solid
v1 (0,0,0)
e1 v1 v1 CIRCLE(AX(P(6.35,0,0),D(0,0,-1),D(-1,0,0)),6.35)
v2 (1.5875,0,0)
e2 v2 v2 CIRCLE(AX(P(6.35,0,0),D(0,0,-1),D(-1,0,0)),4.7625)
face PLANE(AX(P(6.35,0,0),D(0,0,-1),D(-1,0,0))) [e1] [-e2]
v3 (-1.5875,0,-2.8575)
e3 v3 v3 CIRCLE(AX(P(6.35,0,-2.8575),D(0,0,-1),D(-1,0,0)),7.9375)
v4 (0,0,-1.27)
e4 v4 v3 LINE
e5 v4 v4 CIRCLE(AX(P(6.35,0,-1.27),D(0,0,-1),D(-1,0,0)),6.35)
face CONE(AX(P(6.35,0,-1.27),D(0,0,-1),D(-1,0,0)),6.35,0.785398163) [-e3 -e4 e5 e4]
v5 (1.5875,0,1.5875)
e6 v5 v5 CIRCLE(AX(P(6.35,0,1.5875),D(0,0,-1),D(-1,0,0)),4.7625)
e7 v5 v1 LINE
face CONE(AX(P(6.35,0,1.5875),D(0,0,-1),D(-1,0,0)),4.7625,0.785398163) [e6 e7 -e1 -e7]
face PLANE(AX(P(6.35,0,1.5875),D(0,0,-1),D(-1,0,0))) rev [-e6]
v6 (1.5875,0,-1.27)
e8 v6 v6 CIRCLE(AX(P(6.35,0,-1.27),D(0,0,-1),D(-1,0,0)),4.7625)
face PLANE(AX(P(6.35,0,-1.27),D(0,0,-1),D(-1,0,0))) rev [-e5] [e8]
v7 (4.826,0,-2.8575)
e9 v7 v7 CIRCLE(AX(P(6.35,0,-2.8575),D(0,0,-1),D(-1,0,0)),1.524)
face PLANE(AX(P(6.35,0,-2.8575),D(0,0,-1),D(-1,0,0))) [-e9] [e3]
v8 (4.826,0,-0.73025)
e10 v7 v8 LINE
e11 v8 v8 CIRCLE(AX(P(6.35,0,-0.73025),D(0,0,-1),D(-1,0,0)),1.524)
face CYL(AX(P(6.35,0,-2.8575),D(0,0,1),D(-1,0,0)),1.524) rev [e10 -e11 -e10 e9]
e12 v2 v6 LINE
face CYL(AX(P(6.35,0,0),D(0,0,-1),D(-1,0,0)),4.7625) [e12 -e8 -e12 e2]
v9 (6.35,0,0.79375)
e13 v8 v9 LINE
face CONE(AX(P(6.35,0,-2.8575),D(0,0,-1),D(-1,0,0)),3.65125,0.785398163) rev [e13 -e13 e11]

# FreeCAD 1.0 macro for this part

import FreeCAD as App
import Part
import Sketcher
from FreeCAD import Vector
Q = App.Units.Quantity


def add_polygon(sketch, points):
    """Adds a closed chain of lines whose ends are joined by coincident constraints."""
    first, n = sketch.GeometryCount, len(points)
    for a, b in zip(points, points[1:] + points[:1]):
        sketch.addGeometry(Part.LineSegment(App.Vector(*a, 0), App.Vector(*b, 0)), False)
    for i in range(n):
        sketch.addConstraint(Sketcher.Constraint("Coincident", first + i, 2, first + (i + 1) % n, 1))

doc = App.newDocument("Part")
body = doc.addObject("PartDesign::Body", "Body")

# Sketch on XZ plane
sketch1 = doc.addObject("Sketcher::SketchObject", "Sketch")
body.addObject(sketch1)
sketch1.AttachmentSupport = (doc.XZ_Plane, [""])
sketch1.MapMode = "FlatFace"
add_polygon(sketch1, [(1.5875, 1.5875), (0, 0), (1.5875, 0), (1.5875, -1.27), (0, -1.27), (-1.5875, -2.8575), (4.826, -2.8575), (4.826, -0.73025), (6.35, 0.79375), (6.35, 1.5875)])  # lines 0-9
sketch1.addGeometry(Part.LineSegment(Vector(6.35, 1.5875, 0), Vector(6.35, -2.8575, 0)), True)  # axis
sketch1.addConstraint([
    Sketcher.Constraint("Horizontal", 1),
    Sketcher.Constraint("Vertical", 2),
    Sketcher.Constraint("Horizontal", 3),
    Sketcher.Constraint("Horizontal", 5),
    Sketcher.Constraint("Vertical", 6),
    Sketcher.Constraint("Vertical", 8),
    Sketcher.Constraint("Horizontal", 9),
    Sketcher.Constraint("Vertical", 10),
    Sketcher.Constraint("Coincident", 0, 2, -1, 1),
    Sketcher.Constraint("Coincident", 10, 1, 8, 2),
    Sketcher.Constraint("PointOnObject", 3, 2, -2),
    Sketcher.Constraint("Parallel", 0, 4),
    Sketcher.Constraint("Parallel", 4, 7),
    Sketcher.Constraint("Horizontal", 5, 2, 10, 2),
    Sketcher.Constraint("Vertical", 2, 2, 9, 2),
    Sketcher.Constraint("Equal", 0, 4),
    Sketcher.Constraint("Angle", 0, Q("-135 deg")),
    Sketcher.Constraint("DistanceY", 2, 2, 2, 1, Q("0.05 in")),
    Sketcher.Constraint("DistanceX", 1, 1, 1, 2, Q("0.0625 in")),
    Sketcher.Constraint("DistanceX", 9, 2, 9, 1, Q("0.1875 in")),
    Sketcher.Constraint("DistanceY", 8, 1, 8, 2, Q("0.03125 in")),
    Sketcher.Constraint("DistanceX", -1, 1, 5, 2, Q("0.19 in")),
])
revolution = doc.addObject("PartDesign::Revolution", "Revolution")
body.addObject(revolution)
revolution.Profile = sketch1
revolution.ReferenceAxis = (sketch1, ["Axis0"])
revolution.Angle = 360

doc.recompute()
